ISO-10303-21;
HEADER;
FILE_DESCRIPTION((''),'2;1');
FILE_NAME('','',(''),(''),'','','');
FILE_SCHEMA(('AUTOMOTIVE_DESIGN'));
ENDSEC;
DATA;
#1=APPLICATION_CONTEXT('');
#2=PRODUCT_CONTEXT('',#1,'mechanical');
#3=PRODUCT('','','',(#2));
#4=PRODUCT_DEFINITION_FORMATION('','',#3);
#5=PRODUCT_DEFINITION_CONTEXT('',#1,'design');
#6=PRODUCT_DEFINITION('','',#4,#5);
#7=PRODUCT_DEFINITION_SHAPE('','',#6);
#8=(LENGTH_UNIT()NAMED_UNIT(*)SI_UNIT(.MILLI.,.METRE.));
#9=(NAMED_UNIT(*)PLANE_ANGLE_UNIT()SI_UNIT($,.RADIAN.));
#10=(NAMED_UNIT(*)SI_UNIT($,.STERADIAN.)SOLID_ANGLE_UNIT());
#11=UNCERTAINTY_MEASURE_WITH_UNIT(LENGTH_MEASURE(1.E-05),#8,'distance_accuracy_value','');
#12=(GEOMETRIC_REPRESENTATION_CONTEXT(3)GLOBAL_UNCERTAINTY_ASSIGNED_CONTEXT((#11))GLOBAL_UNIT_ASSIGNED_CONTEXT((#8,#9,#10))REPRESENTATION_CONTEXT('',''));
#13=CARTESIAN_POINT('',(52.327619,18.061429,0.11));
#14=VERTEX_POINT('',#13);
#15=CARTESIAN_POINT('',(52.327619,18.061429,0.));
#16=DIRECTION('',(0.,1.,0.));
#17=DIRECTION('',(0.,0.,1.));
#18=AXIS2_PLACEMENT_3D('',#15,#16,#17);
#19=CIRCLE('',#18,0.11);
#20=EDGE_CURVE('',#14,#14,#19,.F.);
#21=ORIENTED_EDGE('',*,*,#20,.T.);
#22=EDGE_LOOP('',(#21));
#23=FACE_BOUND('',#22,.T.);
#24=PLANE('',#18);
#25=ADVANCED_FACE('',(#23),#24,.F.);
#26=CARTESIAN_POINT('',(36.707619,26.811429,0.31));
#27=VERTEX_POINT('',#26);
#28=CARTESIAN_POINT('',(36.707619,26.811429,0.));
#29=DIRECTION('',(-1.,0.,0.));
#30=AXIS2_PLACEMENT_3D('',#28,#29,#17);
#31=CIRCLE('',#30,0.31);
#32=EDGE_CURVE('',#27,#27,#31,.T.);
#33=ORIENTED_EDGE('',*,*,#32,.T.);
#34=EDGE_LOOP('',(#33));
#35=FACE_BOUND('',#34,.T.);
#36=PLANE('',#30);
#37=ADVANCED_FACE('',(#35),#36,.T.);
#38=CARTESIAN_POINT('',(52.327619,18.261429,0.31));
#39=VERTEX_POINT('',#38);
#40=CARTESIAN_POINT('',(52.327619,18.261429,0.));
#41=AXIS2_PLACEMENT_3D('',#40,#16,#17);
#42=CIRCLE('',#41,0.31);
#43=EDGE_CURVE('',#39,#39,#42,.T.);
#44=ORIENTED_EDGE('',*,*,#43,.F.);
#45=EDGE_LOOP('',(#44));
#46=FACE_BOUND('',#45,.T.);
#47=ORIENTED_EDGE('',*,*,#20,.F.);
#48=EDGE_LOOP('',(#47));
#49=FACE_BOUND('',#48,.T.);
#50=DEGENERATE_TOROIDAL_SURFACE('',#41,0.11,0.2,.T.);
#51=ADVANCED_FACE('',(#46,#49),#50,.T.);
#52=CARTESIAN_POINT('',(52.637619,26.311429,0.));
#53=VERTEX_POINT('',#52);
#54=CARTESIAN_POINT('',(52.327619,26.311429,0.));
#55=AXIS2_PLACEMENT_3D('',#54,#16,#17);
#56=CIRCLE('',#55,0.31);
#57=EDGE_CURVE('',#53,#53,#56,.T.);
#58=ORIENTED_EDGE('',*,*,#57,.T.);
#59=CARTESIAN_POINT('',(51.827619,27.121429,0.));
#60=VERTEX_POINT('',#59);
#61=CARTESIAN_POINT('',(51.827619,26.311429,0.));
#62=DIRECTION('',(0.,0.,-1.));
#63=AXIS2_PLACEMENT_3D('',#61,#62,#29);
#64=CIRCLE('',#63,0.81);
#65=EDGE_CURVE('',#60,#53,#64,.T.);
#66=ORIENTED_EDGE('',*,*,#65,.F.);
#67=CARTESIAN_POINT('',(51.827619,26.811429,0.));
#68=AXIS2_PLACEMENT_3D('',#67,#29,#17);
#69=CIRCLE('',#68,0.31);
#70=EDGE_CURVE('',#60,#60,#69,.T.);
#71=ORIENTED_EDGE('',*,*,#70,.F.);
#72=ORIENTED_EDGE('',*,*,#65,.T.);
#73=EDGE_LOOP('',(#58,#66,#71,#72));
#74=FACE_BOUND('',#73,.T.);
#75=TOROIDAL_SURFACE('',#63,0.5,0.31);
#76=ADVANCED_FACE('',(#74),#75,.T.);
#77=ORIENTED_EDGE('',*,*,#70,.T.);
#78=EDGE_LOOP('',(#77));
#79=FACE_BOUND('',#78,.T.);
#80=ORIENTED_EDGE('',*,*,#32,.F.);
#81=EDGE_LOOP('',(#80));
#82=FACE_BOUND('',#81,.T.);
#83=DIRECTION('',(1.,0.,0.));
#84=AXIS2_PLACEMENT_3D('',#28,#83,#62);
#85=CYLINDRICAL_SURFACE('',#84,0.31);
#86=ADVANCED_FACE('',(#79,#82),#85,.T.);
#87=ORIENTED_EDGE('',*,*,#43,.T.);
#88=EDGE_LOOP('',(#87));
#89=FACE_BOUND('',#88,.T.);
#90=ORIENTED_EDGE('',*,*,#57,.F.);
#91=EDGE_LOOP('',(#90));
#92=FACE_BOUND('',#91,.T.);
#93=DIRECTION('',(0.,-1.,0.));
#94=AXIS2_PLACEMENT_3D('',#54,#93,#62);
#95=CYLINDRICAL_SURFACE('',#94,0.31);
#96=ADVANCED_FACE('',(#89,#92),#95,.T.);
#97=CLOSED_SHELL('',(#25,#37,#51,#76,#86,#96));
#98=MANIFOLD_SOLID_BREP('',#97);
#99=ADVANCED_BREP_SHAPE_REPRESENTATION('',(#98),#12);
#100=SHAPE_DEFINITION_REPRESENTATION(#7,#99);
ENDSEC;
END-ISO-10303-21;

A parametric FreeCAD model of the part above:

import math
import FreeCAD as App
import Part
import Sketcher


def edges_at(feature, points):
    """Names of the edges that pass closest to the given points."""
    edges = feature.Shape.Edges
    near = lambda p: min(range(len(edges)), key=lambda i: edges[i].distToShape(Part.Vertex(*p))[0])
    return sorted({f"Edge{near(p) + 1}" for p in points})

doc = App.newDocument("Part")
params = doc.addObject("Spreadsheet::Sheet", "Params")
for row, (alias, value) in enumerate([
    ("sketch1_diameter", "0.62 mm"),
    ("sketch2_radius", "0.5 mm"),
    ("sketch2_width", "15.12 mm"),
    ("sketch2_height", "8.25 mm"),
    ("fillet_radius", "0.2 mm"),
], start=1):
    params.set(f"A{row}", alias)
    params.set(f"B{row}", "=" + value)
    params.setAlias(f"B{row}", alias)

body = doc.addObject("PartDesign::Body", "Body")

# Sketch on YZ plane
sketch1 = body.newObject("Sketcher::SketchObject", "Sketch")
sketch1.AttachmentSupport = (doc.getObject("YZ_Plane"), [""])
sketch1.MapMode = "FlatFace"
sketch1.AttachmentOffset = App.Placement(App.Vector(0, 0, 36.707619), App.Rotation())
sketch1.addGeometry(Part.Circle(App.Vector(26.811429, 0, 0), App.Vector(0, 0, 1), 0.31), False)
sketch1.addConstraint([
    Sketcher.Constraint("PointOnObject", 0, 3, -1),
    Sketcher.Constraint("Diameter", 0, 0.62),
    Sketcher.Constraint("DistanceX", -1, 1, 0, 3, 26.811429),
])
sketch1.setExpression("Constraints[1]", "Params.sketch1_diameter")

# Sketch on XY plane
sketch2 = body.newObject("Sketcher::SketchObject", "Sketch001")
sketch2.AttachmentSupport = (doc.getObject("XY_Plane"), [""])
sketch2.MapMode = "FlatFace"
sketch2.addGeometry([
    Part.LineSegment(App.Vector(36.707619, 26.811429, 0), App.Vector(51.827619, 26.811429, 0)),
    Part.ArcOfCircle(Part.Circle(App.Vector(51.827619, 26.311429, 0), App.Vector(0, 0, 1), 0.5), math.radians(0), math.radians(90)),
    Part.LineSegment(App.Vector(52.327619, 26.311429, 0), App.Vector(52.327619, 18.061429, 0)),
], False)
sketch2.addConstraint([
    Sketcher.Constraint("Tangent", 0, 2, 1, 2),
    Sketcher.Constraint("Tangent", 1, 1, 2, 1),
    Sketcher.Constraint("Horizontal", 0),
    Sketcher.Constraint("Vertical", 2),
    Sketcher.Constraint("Radius", 1, 0.5),
    Sketcher.Constraint("DistanceX", 0, 1, 0, 2, 15.12),
    Sketcher.Constraint("DistanceY", 2, 2, 2, 1, 8.25),
    Sketcher.Constraint("DistanceX", -1, 1, 1, 3, 51.827619),
    Sketcher.Constraint("DistanceY", -1, 1, 1, 3, 26.311429),
])
sketch2.setExpression("Constraints[4]", "Params.sketch2_radius")
sketch2.setExpression("Constraints[5]", "Params.sketch2_width")
sketch2.setExpression("Constraints[6]", "Params.sketch2_height")
doc.recompute()

additivepipe = body.newObject("PartDesign::AdditivePipe", "AdditivePipe")
additivepipe.Profile = sketch1
additivepipe.Spine = (sketch2, ["Edge1", "Edge2", "Edge3"])
doc.recompute()

fillet = body.newObject("PartDesign::Fillet", "Fillet")
fillet.Base = (additivepipe, edges_at(additivepipe, [(52.328, 18.061, -0.31)]))
fillet.setExpression("Radius", "Params.fillet_radius")

doc.recompute()
